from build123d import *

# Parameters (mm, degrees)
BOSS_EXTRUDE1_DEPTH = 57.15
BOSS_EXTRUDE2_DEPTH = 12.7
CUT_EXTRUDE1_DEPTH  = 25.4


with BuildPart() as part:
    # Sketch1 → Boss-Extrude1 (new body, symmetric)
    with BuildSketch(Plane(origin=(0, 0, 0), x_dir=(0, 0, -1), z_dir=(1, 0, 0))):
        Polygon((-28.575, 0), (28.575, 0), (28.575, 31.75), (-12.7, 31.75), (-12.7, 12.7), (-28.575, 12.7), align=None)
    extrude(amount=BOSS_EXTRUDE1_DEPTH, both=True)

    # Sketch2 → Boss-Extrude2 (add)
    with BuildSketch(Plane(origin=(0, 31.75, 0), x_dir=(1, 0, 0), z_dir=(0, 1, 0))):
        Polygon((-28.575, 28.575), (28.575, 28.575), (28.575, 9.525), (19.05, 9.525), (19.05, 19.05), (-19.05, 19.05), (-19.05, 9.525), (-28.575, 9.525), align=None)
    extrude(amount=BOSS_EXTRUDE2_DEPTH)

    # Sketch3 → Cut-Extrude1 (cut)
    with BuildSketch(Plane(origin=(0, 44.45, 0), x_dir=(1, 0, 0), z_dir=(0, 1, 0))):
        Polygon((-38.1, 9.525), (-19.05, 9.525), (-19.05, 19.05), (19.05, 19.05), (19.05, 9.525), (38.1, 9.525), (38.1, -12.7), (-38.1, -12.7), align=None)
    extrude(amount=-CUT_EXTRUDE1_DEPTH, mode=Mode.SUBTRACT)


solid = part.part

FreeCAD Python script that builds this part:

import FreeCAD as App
import Part
import Sketcher

V = App.Vector
Q = App.Units.Quantity


def add_polygon(sketch, points):
    """Adds a closed chain of lines whose ends are joined by coincident constraints."""
    first, n = sketch.GeometryCount, len(points)
    for a, b in zip(points, points[1:] + points[:1]):
        sketch.addGeometry(Part.LineSegment(App.Vector(*a, 0), App.Vector(*b, 0)), False)
    for i in range(n):
        sketch.addConstraint(Sketcher.Constraint("Coincident", first + i, 2, first + (i + 1) % n, 1))

doc = App.newDocument("Part")
body = doc.addObject("PartDesign::Body", "Body")

# Sketch on YZ plane
sketch1 = body.newObject("Sketcher::SketchObject", "Sketch")
sketch1.AttachmentSupport = (doc.getObject("YZ_Plane"), [""])
sketch1.MapMode = "FlatFace"
add_polygon(sketch1, [(0, 28.575), (0, -28.575), (31.75, -28.575), (31.75, 12.7), (12.7, 12.7), (12.7, 28.575)])  # lines 0-5
sketch1.addConstraint([
    Sketcher.Constraint("Vertical", 0),
    Sketcher.Constraint("Horizontal", 1),
    Sketcher.Constraint("Vertical", 2),
    Sketcher.Constraint("Horizontal", 3),
    Sketcher.Constraint("Vertical", 4),
    Sketcher.Constraint("Horizontal", 5),
    Sketcher.Constraint("Symmetric", 0, 2, 5, 2, -1, 1),
    Sketcher.Constraint("DistanceX", 5, 2, 5, 1, Q("0.5 in")),
    Sketcher.Constraint("DistanceX", 1, 1, 1, 2, Q("1.25 in")),
    Sketcher.Constraint("DistanceY", 0, 2, 0, 1, Q("2.25 in")),
    Sketcher.Constraint("DistanceY", -1, 1, 2, 2, Q("0.5 in")),
])
pad1 = body.newObject("PartDesign::Pad", "Pad")
pad1.Profile = sketch1
pad1.Length = Q("4.5 in")
pad1.Midplane = True

# Sketch on XZ plane
sketch2 = body.newObject("Sketcher::SketchObject", "Sketch001")
sketch2.AttachmentSupport = (doc.getObject("XZ_Plane"), [""])
sketch2.MapMode = "FlatFace"
sketch2.AttachmentOffset = App.Placement(V(0, 0, -1.25 * 25.4), App.Rotation())
add_polygon(sketch2, [(28.575, -28.575), (-28.575, -28.575), (-28.575, -9.525), (-19.05, -9.525), (-19.05, -19.05), (19.05, -19.05), (19.05, -9.525), (28.575, -9.525)])  # lines 0-7
sketch2.addConstraint([
    Sketcher.Constraint("Horizontal", 0),
    Sketcher.Constraint("Vertical", 1),
    Sketcher.Constraint("Horizontal", 2),
    Sketcher.Constraint("Vertical", 3),
    Sketcher.Constraint("Horizontal", 4),
    Sketcher.Constraint("Vertical", 5),
    Sketcher.Constraint("Horizontal", 6),
    Sketcher.Constraint("Vertical", 7),
    Sketcher.Constraint("Symmetric", 2, 2, 5, 2, -2),
    Sketcher.Constraint("Equal", 2, 6),
    Sketcher.Constraint("Equal", 6, 3),
    Sketcher.Constraint("DistanceX", 4, 1, 4, 2, Q("1.5 in")),
    Sketcher.Constraint("DistanceX", 0, 2, 0, 1, Q("2.25 in")),
    Sketcher.Constraint("DistanceY", 1, 1, 1, 2, Q("0.75 in")),
    Sketcher.Constraint("DistanceY", 3, 2, -1, 1, Q("0.75 in")),
])
pad2 = body.newObject("PartDesign::Pad", "Pad001")
pad2.Profile = sketch2
pad2.Length = Q("0.5 in")
pad2.Reversed = True

# Sketch on XZ plane
sketch3 = body.newObject("Sketcher::SketchObject", "Sketch002")
sketch3.AttachmentSupport = (doc.getObject("XZ_Plane"), [""])
sketch3.MapMode = "FlatFace"
sketch3.AttachmentOffset = App.Placement(V(0, 0, -1.75 * 25.4), App.Rotation())
add_polygon(sketch3, [(-19.05, -9.525), (-38.1, -9.525), (-38.1, 12.7), (38.1, 12.7), (38.1, -9.525), (19.05, -9.525), (19.05, -19.05), (-19.05, -19.05)])  # lines 0-7
sketch3.addConstraint([
    Sketcher.Constraint("Horizontal", 0),
    Sketcher.Constraint("Vertical", 1),
    Sketcher.Constraint("Horizontal", 2),
    Sketcher.Constraint("Vertical", 3),
    Sketcher.Constraint("Horizontal", 4),
    Sketcher.Constraint("Vertical", 5),
    Sketcher.Constraint("Horizontal", 6),
    Sketcher.Constraint("Vertical", 7),
    Sketcher.Constraint("Symmetric", 0, 2, 3, 2, -2),
    Sketcher.Constraint("Equal", 0, 4),
    Sketcher.Constraint("DistanceX", 2, 1, 2, 2, Q("3 in")),
    Sketcher.Constraint("DistanceX", 6, 2, 6, 1, Q("1.5 in")),
    Sketcher.Constraint("DistanceY", -1, 1, 1, 2, Q("0.5 in")),
    Sketcher.Constraint("DistanceY", 1, 1, 1, 2, Q("0.875 in")),
    Sketcher.Constraint("DistanceY", 5, 2, 5, 1, Q("0.375 in")),
])
pocket1 = body.newObject("PartDesign::Pocket", "Pocket")
pocket1.Profile = sketch3
pocket1.Length = Q("1 in")
pocket1.Reversed = True

doc.recompute()
